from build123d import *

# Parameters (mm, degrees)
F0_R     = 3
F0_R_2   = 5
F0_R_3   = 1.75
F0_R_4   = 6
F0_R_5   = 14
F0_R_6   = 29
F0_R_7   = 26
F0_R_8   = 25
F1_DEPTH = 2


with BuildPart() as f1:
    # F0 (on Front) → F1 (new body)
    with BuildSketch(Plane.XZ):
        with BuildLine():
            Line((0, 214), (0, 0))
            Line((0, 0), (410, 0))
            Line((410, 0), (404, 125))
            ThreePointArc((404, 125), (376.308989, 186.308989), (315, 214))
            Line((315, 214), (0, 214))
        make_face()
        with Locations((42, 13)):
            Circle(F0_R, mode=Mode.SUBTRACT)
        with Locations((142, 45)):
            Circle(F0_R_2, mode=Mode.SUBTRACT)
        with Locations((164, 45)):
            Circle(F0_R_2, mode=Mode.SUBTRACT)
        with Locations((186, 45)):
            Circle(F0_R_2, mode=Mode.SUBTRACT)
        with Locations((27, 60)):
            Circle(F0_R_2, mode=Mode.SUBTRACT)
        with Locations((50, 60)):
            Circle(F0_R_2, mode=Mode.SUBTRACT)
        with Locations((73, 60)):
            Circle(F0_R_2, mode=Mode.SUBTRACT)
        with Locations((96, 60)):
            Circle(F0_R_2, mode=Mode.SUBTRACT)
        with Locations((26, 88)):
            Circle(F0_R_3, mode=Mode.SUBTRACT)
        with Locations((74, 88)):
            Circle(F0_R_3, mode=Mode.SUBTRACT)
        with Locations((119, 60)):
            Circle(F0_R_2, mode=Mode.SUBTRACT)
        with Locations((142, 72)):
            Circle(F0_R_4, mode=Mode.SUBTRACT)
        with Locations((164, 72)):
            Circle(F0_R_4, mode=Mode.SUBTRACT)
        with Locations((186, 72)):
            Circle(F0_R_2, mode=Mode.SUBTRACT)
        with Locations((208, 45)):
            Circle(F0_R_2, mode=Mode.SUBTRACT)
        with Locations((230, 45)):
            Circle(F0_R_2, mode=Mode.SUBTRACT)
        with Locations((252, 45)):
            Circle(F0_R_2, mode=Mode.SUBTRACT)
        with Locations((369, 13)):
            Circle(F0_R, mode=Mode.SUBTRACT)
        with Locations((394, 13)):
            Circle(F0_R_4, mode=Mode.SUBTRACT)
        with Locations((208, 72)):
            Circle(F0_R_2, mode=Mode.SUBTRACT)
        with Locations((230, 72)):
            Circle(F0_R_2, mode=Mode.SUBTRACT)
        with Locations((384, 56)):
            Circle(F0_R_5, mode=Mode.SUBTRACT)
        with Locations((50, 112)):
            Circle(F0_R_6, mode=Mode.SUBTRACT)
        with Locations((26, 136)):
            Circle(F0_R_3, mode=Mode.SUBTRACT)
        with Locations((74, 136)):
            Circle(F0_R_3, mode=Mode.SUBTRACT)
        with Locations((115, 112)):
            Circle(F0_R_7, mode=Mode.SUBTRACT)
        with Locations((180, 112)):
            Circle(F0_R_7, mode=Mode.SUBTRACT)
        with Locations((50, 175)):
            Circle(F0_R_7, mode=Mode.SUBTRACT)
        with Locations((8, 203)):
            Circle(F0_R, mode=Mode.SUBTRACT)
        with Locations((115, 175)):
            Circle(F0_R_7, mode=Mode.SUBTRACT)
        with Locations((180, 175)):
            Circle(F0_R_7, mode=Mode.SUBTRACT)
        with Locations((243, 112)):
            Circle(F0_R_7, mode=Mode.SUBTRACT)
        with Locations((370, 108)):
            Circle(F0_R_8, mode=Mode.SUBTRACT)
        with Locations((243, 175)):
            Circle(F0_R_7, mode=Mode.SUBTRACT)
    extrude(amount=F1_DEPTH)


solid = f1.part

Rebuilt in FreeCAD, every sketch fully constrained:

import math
import FreeCAD as App
import Part
import Sketcher
from FreeCAD import Vector

doc = App.newDocument("Part")
params = doc.addObject("Spreadsheet::Sheet", "Params")
for row, (alias, value) in enumerate([
    ("sketch1_diameter", "6 mm"),
    ("sketch1_diameter2", "10 mm"),
    ("sketch1_diameter3", "12 mm"),
    ("sketch1_diameter4", "28 mm"),
    ("sketch1_diameter5", "58 mm"),
    ("pad1_length", "2 mm"),
], start=1):
    params.set(f"A{row}", alias)
    params.set(f"B{row}", "=" + value)
    params.setAlias(f"B{row}", alias)

body = doc.addObject("PartDesign::Body", "Body")

# Sketch on XZ plane
sketch1 = body.newObject("Sketcher::SketchObject", "Sketch")
sketch1.AttachmentSupport = (doc.getObject("XZ_Plane"), [""])
sketch1.MapMode = "FlatFace"
sketch1.addGeometry([
    Part.LineSegment(Vector(0, 214, 0), Vector(0, 0, 0)),  # 0
    Part.LineSegment(Vector(0, 0, 0), Vector(410, 0, 0)),  # 1
    Part.LineSegment(Vector(410, 0, 0), Vector(404, 125, 0)),  # 2
    Part.ArcOfCircle(Part.Circle(Vector(309, 119, 0), Vector(0, 0, 1), 95.189285), math.radians(3.613881), math.radians(86.386119)),  # 3
    Part.LineSegment(Vector(315, 214, 0), Vector(0, 214, 0)),  # 4
    Part.Circle(Vector(42, 13, 0), Vector(0, 0, 1), 3),  # 5
    Part.Circle(Vector(142, 45, 0), Vector(0, 0, 1), 5),  # 6
    Part.Circle(Vector(164, 45, 0), Vector(0, 0, 1), 5),  # 7
    Part.Circle(Vector(186, 45, 0), Vector(0, 0, 1), 5),  # 8
    Part.Circle(Vector(27, 60, 0), Vector(0, 0, 1), 5),  # 9
    Part.Circle(Vector(50, 60, 0), Vector(0, 0, 1), 5),  # 10
    Part.Circle(Vector(73, 60, 0), Vector(0, 0, 1), 5),  # 11
    Part.Circle(Vector(96, 60, 0), Vector(0, 0, 1), 5),  # 12
    Part.Circle(Vector(26, 88, 0), Vector(0, 0, 1), 1.75),  # 13
    Part.Circle(Vector(74, 88, 0), Vector(0, 0, 1), 1.75),  # 14
    Part.Circle(Vector(119, 60, 0), Vector(0, 0, 1), 5),  # 15
    Part.Circle(Vector(142, 72, 0), Vector(0, 0, 1), 6),  # 16
    Part.Circle(Vector(164, 72, 0), Vector(0, 0, 1), 6),  # 17
    Part.Circle(Vector(186, 72, 0), Vector(0, 0, 1), 5),  # 18
    Part.Circle(Vector(208, 45, 0), Vector(0, 0, 1), 5),  # 19
    Part.Circle(Vector(230, 45, 0), Vector(0, 0, 1), 5),  # 20
    Part.Circle(Vector(252, 45, 0), Vector(0, 0, 1), 5),  # 21
    Part.Circle(Vector(369, 13, 0), Vector(0, 0, 1), 3),  # 22
    Part.Circle(Vector(394, 13, 0), Vector(0, 0, 1), 6),  # 23
    Part.Circle(Vector(384, 56, 0), Vector(0, 0, 1), 14),  # 24
    Part.Circle(Vector(208, 72, 0), Vector(0, 0, 1), 5),  # 25
    Part.Circle(Vector(230, 72, 0), Vector(0, 0, 1), 5),  # 26
    Part.Circle(Vector(50, 112, 0), Vector(0, 0, 1), 29),  # 27
    Part.Circle(Vector(26, 136, 0), Vector(0, 0, 1), 1.75),  # 28
    Part.Circle(Vector(74, 136, 0), Vector(0, 0, 1), 1.75),  # 29
    Part.Circle(Vector(115, 112, 0), Vector(0, 0, 1), 26),  # 30
    Part.Circle(Vector(180, 112, 0), Vector(0, 0, 1), 26),  # 31
    Part.Circle(Vector(50, 175, 0), Vector(0, 0, 1), 26),  # 32
    Part.Circle(Vector(8, 203, 0), Vector(0, 0, 1), 3),  # 33
    Part.Circle(Vector(115, 175, 0), Vector(0, 0, 1), 26),  # 34
    Part.Circle(Vector(180, 175, 0), Vector(0, 0, 1), 26),  # 35
    Part.Circle(Vector(243, 112, 0), Vector(0, 0, 1), 26),  # 36
    Part.Circle(Vector(370, 108, 0), Vector(0, 0, 1), 25),  # 37
    Part.Circle(Vector(243, 175, 0), Vector(0, 0, 1), 26),  # 38
], False)
sketch1.addConstraint([
    Sketcher.Constraint("Coincident", 0, 2, 1, 1),
    Sketcher.Constraint("Coincident", 1, 2, 2, 1),
    Sketcher.Constraint("Coincident", 2, 2, 3, 1),
    Sketcher.Constraint("Coincident", 3, 2, 4, 1),
    Sketcher.Constraint("Coincident", 4, 2, 0, 1),
    Sketcher.Constraint("Vertical", 0),
    Sketcher.Constraint("Horizontal", 1),
    Sketcher.Constraint("Horizontal", 4),
    Sketcher.Constraint("Coincident", 0, 2, -1, 1),
    Sketcher.Constraint("Equal", 6, 7),
    Sketcher.Constraint("Equal", 7, 8),
    Sketcher.Constraint("Equal", 8, 9),
    Sketcher.Constraint("Equal", 9, 10),
    Sketcher.Constraint("Equal", 10, 11),
    Sketcher.Constraint("Equal", 11, 12),
    Sketcher.Constraint("Equal", 13, 14),
    Sketcher.Constraint("Equal", 12, 15),
    Sketcher.Constraint("Equal", 16, 17),
    Sketcher.Constraint("Equal", 15, 18),
    Sketcher.Constraint("Equal", 18, 19),
    Sketcher.Constraint("Equal", 19, 20),
    Sketcher.Constraint("Equal", 20, 21),
    Sketcher.Constraint("Equal", 5, 22),
    Sketcher.Constraint("Equal", 17, 23),
    Sketcher.Constraint("Equal", 21, 25),
    Sketcher.Constraint("Equal", 25, 26),
    Sketcher.Constraint("Equal", 14, 28),
    Sketcher.Constraint("Equal", 28, 29),
    Sketcher.Constraint("Equal", 30, 31),
    Sketcher.Constraint("Equal", 31, 32),
    Sketcher.Constraint("Equal", 22, 33),
    Sketcher.Constraint("Equal", 32, 34),
    Sketcher.Constraint("Equal", 34, 35),
    Sketcher.Constraint("Equal", 35, 36),
    Sketcher.Constraint("Equal", 36, 38),
    Sketcher.Constraint("Horizontal", 6, 3, 7, 3),
    Sketcher.Constraint("Horizontal", 7, 3, 8, 3),
    Sketcher.Constraint("Horizontal", 9, 3, 10, 3),
    Sketcher.Constraint("Horizontal", 10, 3, 11, 3),
    Sketcher.Constraint("Horizontal", 11, 3, 12, 3),
    Sketcher.Constraint("Horizontal", 13, 3, 14, 3),
    Sketcher.Constraint("Horizontal", 12, 3, 15, 3),
    Sketcher.Constraint("Horizontal", 16, 3, 17, 3),
    Sketcher.Constraint("Horizontal", 17, 3, 18, 3),
    Sketcher.Constraint("Horizontal", 8, 3, 19, 3),
    Sketcher.Constraint("Horizontal", 19, 3, 20, 3),
    Sketcher.Constraint("Horizontal", 20, 3, 21, 3),
    Sketcher.Constraint("Horizontal", 5, 3, 22, 3),
    Sketcher.Constraint("Horizontal", 22, 3, 23, 3),
    Sketcher.Constraint("Horizontal", 18, 3, 25, 3),
    Sketcher.Constraint("Horizontal", 25, 3, 26, 3),
    Sketcher.Constraint("Horizontal", 28, 3, 29, 3),
    Sketcher.Constraint("Horizontal", 27, 3, 30, 3),
    Sketcher.Constraint("Horizontal", 30, 3, 31, 3),
    Sketcher.Constraint("Horizontal", 32, 3, 34, 3),
    Sketcher.Constraint("Horizontal", 34, 3, 35, 3),
    Sketcher.Constraint("Horizontal", 31, 3, 36, 3),
    Sketcher.Constraint("Horizontal", 35, 3, 38, 3),
    Sketcher.Constraint("Vertical", 6, 3, 16, 3),
    Sketcher.Constraint("Vertical", 7, 3, 17, 3),
    Sketcher.Constraint("Vertical", 8, 3, 18, 3),
    Sketcher.Constraint("Vertical", 19, 3, 25, 3),
    Sketcher.Constraint("Vertical", 20, 3, 26, 3),
    Sketcher.Constraint("Vertical", 10, 3, 27, 3),
    Sketcher.Constraint("Vertical", 13, 3, 28, 3),
    Sketcher.Constraint("Vertical", 14, 3, 29, 3),
    Sketcher.Constraint("Vertical", 27, 3, 32, 3),
    Sketcher.Constraint("Vertical", 30, 3, 34, 3),
    Sketcher.Constraint("Vertical", 31, 3, 35, 3),
    Sketcher.Constraint("Vertical", 36, 3, 38, 3),
    Sketcher.Constraint("Diameter", 5, 6.0),
    Sketcher.Constraint("Diameter", 6, 10.0),
    Sketcher.Constraint("Diameter", 16, 12.0),
    Sketcher.Constraint("Diameter", 24, 28.0),
    Sketcher.Constraint("Diameter", 27, 58.0),
    Sketcher.Constraint("Diameter", 30, 52.0),
    Sketcher.Constraint("Diameter", 37, 50.0),
    Sketcher.Constraint("Diameter", 13, 3.5),
    Sketcher.Constraint("DistanceX", 1, 1, 1, 2, 410.0),
    Sketcher.Constraint("DistanceX", 4, 2, 4, 1, 315.0),
    Sketcher.Constraint("DistanceY", 0, 2, 0, 1, 214.0),
    Sketcher.Constraint("DistanceX", -1, 1, 3, 3, 309.0),
    Sketcher.Constraint("DistanceY", -1, 1, 3, 3, 119.0),
    Sketcher.Constraint("DistanceX", -1, 1, 5, 3, 42.0),
    Sketcher.Constraint("DistanceY", -1, 1, 5, 3, 13.0),
    Sketcher.Constraint("DistanceX", -1, 1, 6, 3, 142.0),
    Sketcher.Constraint("DistanceY", -1, 1, 6, 3, 45.0),
    Sketcher.Constraint("DistanceX", -1, 1, 7, 3, 164.0),
    Sketcher.Constraint("DistanceX", -1, 1, 8, 3, 186.0),
    Sketcher.Constraint("DistanceX", -1, 1, 9, 3, 27.0),
    Sketcher.Constraint("DistanceY", -1, 1, 9, 3, 60.0),
    Sketcher.Constraint("DistanceX", -1, 1, 10, 3, 50.0),
    Sketcher.Constraint("DistanceX", -1, 1, 11, 3, 73.0),
    Sketcher.Constraint("DistanceX", -1, 1, 12, 3, 96.0),
    Sketcher.Constraint("DistanceX", -1, 1, 13, 3, 26.0),
    Sketcher.Constraint("DistanceY", -1, 1, 13, 3, 88.0),
    Sketcher.Constraint("DistanceX", -1, 1, 14, 3, 74.0),
    Sketcher.Constraint("DistanceX", -1, 1, 15, 3, 119.0),
    Sketcher.Constraint("DistanceY", -1, 1, 16, 3, 72.0),
    Sketcher.Constraint("DistanceX", -1, 1, 19, 3, 208.0),
    Sketcher.Constraint("DistanceX", -1, 1, 20, 3, 230.0),
    Sketcher.Constraint("DistanceX", -1, 1, 21, 3, 252.0),
    Sketcher.Constraint("DistanceX", -1, 1, 22, 3, 369.0),
    Sketcher.Constraint("DistanceX", -1, 1, 23, 3, 394.0),
    Sketcher.Constraint("DistanceX", -1, 1, 24, 3, 384.0),
    Sketcher.Constraint("DistanceY", -1, 1, 24, 3, 56.0),
    Sketcher.Constraint("DistanceY", -1, 1, 27, 3, 112.0),
    Sketcher.Constraint("DistanceY", -1, 1, 28, 3, 136.0),
    Sketcher.Constraint("DistanceX", -1, 1, 30, 3, 115.0),
    Sketcher.Constraint("DistanceX", -1, 1, 31, 3, 180.0),
    Sketcher.Constraint("DistanceY", -1, 1, 32, 3, 175.0),
    Sketcher.Constraint("DistanceX", -1, 1, 33, 3, 8.0),
    Sketcher.Constraint("DistanceY", -1, 1, 33, 3, 203.0),
    Sketcher.Constraint("DistanceX", -1, 1, 36, 3, 243.0),
    Sketcher.Constraint("DistanceX", -1, 1, 37, 3, 370.0),
    Sketcher.Constraint("DistanceY", -1, 1, 37, 3, 108.0),
    Sketcher.Constraint("DistanceX", -1, 1, 2, 2, 404.0),
])
sketch1.setExpression("Constraints[70]", "Params.sketch1_diameter")
sketch1.setExpression("Constraints[71]", "Params.sketch1_diameter2")
sketch1.setExpression("Constraints[72]", "Params.sketch1_diameter3")
sketch1.setExpression("Constraints[73]", "Params.sketch1_diameter4")
sketch1.setExpression("Constraints[74]", "Params.sketch1_diameter5")
pad1 = body.newObject("PartDesign::Pad", "Pad")
pad1.Profile = sketch1
pad1.setExpression("Length", "Params.pad1_length")

doc.recompute()
